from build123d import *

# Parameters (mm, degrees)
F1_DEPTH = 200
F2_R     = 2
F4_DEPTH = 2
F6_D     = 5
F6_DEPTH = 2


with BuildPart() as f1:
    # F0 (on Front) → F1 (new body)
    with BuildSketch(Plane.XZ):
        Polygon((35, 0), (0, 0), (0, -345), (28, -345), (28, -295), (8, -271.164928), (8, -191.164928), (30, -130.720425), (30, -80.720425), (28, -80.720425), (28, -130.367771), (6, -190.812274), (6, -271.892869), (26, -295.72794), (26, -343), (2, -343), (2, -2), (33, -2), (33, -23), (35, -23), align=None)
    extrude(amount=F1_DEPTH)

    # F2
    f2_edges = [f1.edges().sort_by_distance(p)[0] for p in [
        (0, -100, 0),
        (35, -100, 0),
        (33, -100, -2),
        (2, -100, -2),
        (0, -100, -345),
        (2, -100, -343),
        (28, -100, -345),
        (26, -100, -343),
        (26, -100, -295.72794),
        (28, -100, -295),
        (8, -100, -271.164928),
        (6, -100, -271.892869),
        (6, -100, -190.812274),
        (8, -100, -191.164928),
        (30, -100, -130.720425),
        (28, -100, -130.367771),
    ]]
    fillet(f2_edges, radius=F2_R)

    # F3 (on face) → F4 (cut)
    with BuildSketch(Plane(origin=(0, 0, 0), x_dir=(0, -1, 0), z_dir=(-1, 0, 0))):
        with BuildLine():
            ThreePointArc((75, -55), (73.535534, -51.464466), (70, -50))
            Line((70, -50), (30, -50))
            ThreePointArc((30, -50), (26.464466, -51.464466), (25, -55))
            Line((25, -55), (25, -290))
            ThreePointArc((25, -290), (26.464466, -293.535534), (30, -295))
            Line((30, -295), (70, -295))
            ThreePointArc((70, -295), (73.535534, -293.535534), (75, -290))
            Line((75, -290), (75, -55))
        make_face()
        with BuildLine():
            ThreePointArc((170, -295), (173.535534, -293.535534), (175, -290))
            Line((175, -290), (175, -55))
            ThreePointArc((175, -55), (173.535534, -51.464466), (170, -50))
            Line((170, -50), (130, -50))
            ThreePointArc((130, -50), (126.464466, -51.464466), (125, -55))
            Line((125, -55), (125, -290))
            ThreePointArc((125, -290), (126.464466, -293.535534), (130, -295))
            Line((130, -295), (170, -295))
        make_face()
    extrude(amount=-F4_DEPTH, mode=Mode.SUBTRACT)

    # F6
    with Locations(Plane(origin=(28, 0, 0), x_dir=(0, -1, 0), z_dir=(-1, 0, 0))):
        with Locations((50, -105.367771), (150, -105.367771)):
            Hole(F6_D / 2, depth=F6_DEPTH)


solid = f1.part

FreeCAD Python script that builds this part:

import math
import FreeCAD as App
import Part
import Sketcher
Q = App.Units.Quantity


def edges_at(feature, points):
    """Names of the edges that pass closest to the given points."""
    edges = feature.Shape.Edges
    near = lambda p: min(range(len(edges)), key=lambda i: edges[i].distToShape(Part.Vertex(*p))[0])
    return sorted({f"Edge{near(p) + 1}" for p in points})


def add_polygon(sketch, points):
    """Adds a closed chain of lines whose ends are joined by coincident constraints."""
    first, n = sketch.GeometryCount, len(points)
    for a, b in zip(points, points[1:] + points[:1]):
        sketch.addGeometry(Part.LineSegment(App.Vector(*a, 0), App.Vector(*b, 0)), False)
    for i in range(n):
        sketch.addConstraint(Sketcher.Constraint("Coincident", first + i, 2, first + (i + 1) % n, 1))

doc = App.newDocument("Part")
body = doc.addObject("PartDesign::Body", "Body")

sketch1 = body.newObject("Sketcher::SketchObject", "Sketch")
sketch1.AttachmentSupport = (doc.getObject("XZ_Plane"), [""])
sketch1.MapMode = "FlatFace"
add_polygon(sketch1, [(35, 0), (0, 0), (0, -345), (28, -345), (28, -295), (8, -271.2), (8, -191.2), (30, -130.7), (30, -80.7), (28, -80.7), (28, -130.4), (6, -190.8), (6, -271.9), (26, -295.7), (26, -343), (2, -343), (2, -2), (33, -2), (33, -23), (35, -23)])
sketch1.addConstraint([
    Sketcher.Constraint("Horizontal", 0),
    Sketcher.Constraint("Vertical", 1),
    Sketcher.Constraint("Horizontal", 2),
    Sketcher.Constraint("Vertical", 3),
    Sketcher.Constraint("Vertical", 5),
    Sketcher.Constraint("Vertical", 7),
    Sketcher.Constraint("Horizontal", 8),
    Sketcher.Constraint("Vertical", 9),
    Sketcher.Constraint("Vertical", 11),
    Sketcher.Constraint("Vertical", 13),
    Sketcher.Constraint("Horizontal", 14),
    Sketcher.Constraint("Vertical", 15),
    Sketcher.Constraint("Horizontal", 16),
    Sketcher.Constraint("Vertical", 17),
    Sketcher.Constraint("Horizontal", 18),
    Sketcher.Constraint("Vertical", 19),
    Sketcher.Constraint("Coincident", 0, 2, -1, 1),
    Sketcher.Constraint("Parallel", 6, 10),
    Sketcher.Constraint("Parallel", 4, 12),
    Sketcher.Constraint("Vertical", 3, 2, 8, 2),
    Sketcher.Constraint("Equal", 8, 18),
    Sketcher.Constraint("Equal", 3, 7),
    Sketcher.Constraint("Equal", 6, 10),
    Sketcher.Constraint("Equal", 4, 12),
    Sketcher.Constraint("DistanceX", 0, 2, 0, 1, Q("35 mm")),
    Sketcher.Constraint("DistanceX", 2, 1, 2, 2, Q("28 mm")),
    Sketcher.Constraint("DistanceX", 8, 2, 8, 1, Q("2 mm")),
    Sketcher.Constraint("DistanceX", 14, 2, 14, 1, Q("24 mm")),
    Sketcher.Constraint("DistanceY", 1, 2, 1, 1, Q("345 mm")),
    Sketcher.Constraint("DistanceY", 3, 1, 3, 2, Q("50 mm")),
    Sketcher.Constraint("DistanceY", 5, 1, 5, 2, Q("80 mm")),
    Sketcher.Constraint("DistanceY", 15, 1, 15, 2, Q("341 mm")),
    Sketcher.Constraint("DistanceY", 17, 2, 17, 1, Q("21 mm")),
    Sketcher.Constraint("DistanceY", 19, 1, 19, 2, Q("23 mm")),
    Sketcher.Constraint("Angle", 4, Q("130 deg")),
    Sketcher.Constraint("Angle", 6, Q("70 deg")),
    Sketcher.Constraint("DistanceX", -1, 1, 4, 2, Q("8 mm")),
    Sketcher.Constraint("DistanceY", 13, 2, 13, 1, Q("47.27206 mm")),
    Sketcher.Constraint("DistanceY", 9, 2, 9, 1, Q("49.647346 mm")),
])
pad1 = body.newObject("PartDesign::Pad", "Pad")
pad1.Profile = sketch1
pad1.Length = 200
doc.recompute()

fillet = body.newObject("PartDesign::Fillet", "Fillet")
fillet.Base = (pad1, edges_at(pad1, [
    (0, -100, 0),
    (35, -100, 0),
    (33, -100, -2),
    (2, -100, -2),
    (0, -100, -345),
    (2, -100, -343),
    (28, -100, -345),
    (26, -100, -343),
    (26, -100, -295.728),
    (28, -100, -295),
    (8, -100, -271.165),
    (6, -100, -271.893),
    (6, -100, -190.812),
    (8, -100, -191.165),
    (30, -100, -130.72),
    (28, -100, -130.368),
]))
fillet.Radius = 2

sketch2 = body.newObject("Sketcher::SketchObject", "Sketch001")
sketch2.AttachmentSupport = (doc.getObject("YZ_Plane"), [""])
sketch2.MapMode = "FlatFace"
sketch2.addGeometry([
    Part.ArcOfCircle(Part.Circle(App.Vector(-70, -55, 0), App.Vector(0, 0, 1), 5), math.radians(90), math.radians(180)),
    Part.LineSegment(App.Vector(-70, -50, 0), App.Vector(-30, -50, 0)),
    Part.ArcOfCircle(Part.Circle(App.Vector(-30, -55, 0), App.Vector(0, 0, 1), 5), math.radians(0), math.radians(90)),
    Part.LineSegment(App.Vector(-25, -55, 0), App.Vector(-25, -290, 0)),
    Part.ArcOfCircle(Part.Circle(App.Vector(-30, -290, 0), App.Vector(0, 0, 1), 5), math.radians(-90), math.radians(0)),
    Part.LineSegment(App.Vector(-30, -295, 0), App.Vector(-70, -295, 0)),
    Part.ArcOfCircle(Part.Circle(App.Vector(-70, -290, 0), App.Vector(0, 0, 1), 5), math.radians(180), math.radians(270)),
    Part.LineSegment(App.Vector(-75, -290, 0), App.Vector(-75, -55, 0)),
    Part.ArcOfCircle(Part.Circle(App.Vector(-170, -290, 0), App.Vector(0, 0, 1), 5), math.radians(180), math.radians(270)),
    Part.LineSegment(App.Vector(-175, -290, 0), App.Vector(-175, -55, 0)),
    Part.ArcOfCircle(Part.Circle(App.Vector(-170, -55, 0), App.Vector(0, 0, 1), 5), math.radians(90), math.radians(180)),
    Part.LineSegment(App.Vector(-170, -50, 0), App.Vector(-130, -50, 0)),
    Part.ArcOfCircle(Part.Circle(App.Vector(-130, -55, 0), App.Vector(0, 0, 1), 5), math.radians(0), math.radians(90)),
    Part.LineSegment(App.Vector(-125, -55, 0), App.Vector(-125, -290, 0)),
    Part.ArcOfCircle(Part.Circle(App.Vector(-130, -290, 0), App.Vector(0, 0, 1), 5), math.radians(-90), math.radians(0)),
    Part.LineSegment(App.Vector(-130, -295, 0), App.Vector(-170, -295, 0)),
], False)
sketch2.addConstraint([
    Sketcher.Constraint("Tangent", 0, 1, 1, 1),
    Sketcher.Constraint("Tangent", 1, 2, 2, 2),
    Sketcher.Constraint("Tangent", 2, 1, 3, 1),
    Sketcher.Constraint("Tangent", 3, 2, 4, 2),
    Sketcher.Constraint("Tangent", 4, 1, 5, 1),
    Sketcher.Constraint("Tangent", 5, 2, 6, 2),
    Sketcher.Constraint("Tangent", 6, 1, 7, 1),
    Sketcher.Constraint("Tangent", 7, 2, 0, 2),
    Sketcher.Constraint("Tangent", 8, 1, 9, 1),
    Sketcher.Constraint("Tangent", 9, 2, 10, 2),
    Sketcher.Constraint("Tangent", 10, 1, 11, 1),
    Sketcher.Constraint("Tangent", 11, 2, 12, 2),
    Sketcher.Constraint("Tangent", 12, 1, 13, 1),
    Sketcher.Constraint("Tangent", 13, 2, 14, 2),
    Sketcher.Constraint("Tangent", 14, 1, 15, 1),
    Sketcher.Constraint("Tangent", 15, 2, 8, 2),
    Sketcher.Constraint("Horizontal", 1),
    Sketcher.Constraint("Vertical", 3),
    Sketcher.Constraint("Horizontal", 5),
    Sketcher.Constraint("Vertical", 7),
    Sketcher.Constraint("Vertical", 9),
    Sketcher.Constraint("Horizontal", 11),
    Sketcher.Constraint("Vertical", 13),
    Sketcher.Constraint("Horizontal", 15),
    Sketcher.Constraint("Equal", 0, 2),
    Sketcher.Constraint("Equal", 2, 4),
    Sketcher.Constraint("Equal", 4, 6),
    Sketcher.Constraint("Equal", 6, 8),
    Sketcher.Constraint("Equal", 8, 10),
    Sketcher.Constraint("Equal", 10, 12),
    Sketcher.Constraint("Equal", 12, 14),
    Sketcher.Constraint("Horizontal", 6, 3, 8, 3),
    Sketcher.Constraint("Horizontal", 2, 3, 10, 3),
    Sketcher.Constraint("Equal", 5, 11),
    Sketcher.Constraint("Radius", 0, Q("5 mm")),
    Sketcher.Constraint("DistanceX", 1, 1, 1, 2, Q("40 mm")),
    Sketcher.Constraint("DistanceY", 3, 2, 3, 1, Q("235 mm")),
    Sketcher.Constraint("DistanceX", 0, 3, -1, 1, Q("70 mm")),
    Sketcher.Constraint("DistanceY", 0, 3, -1, 1, Q("55 mm")),
    Sketcher.Constraint("DistanceX", 8, 3, -1, 1, Q("170 mm")),
])
pocket1 = body.newObject("PartDesign::Pocket", "Pocket")
pocket1.Profile = sketch2
pocket1.Length = 2
pocket1.Reversed = True

sketch3 = body.newObject("Sketcher::SketchObject", "Sketch002")
sketch3.AttachmentSupport = (doc.getObject("YZ_Plane"), [""])
sketch3.MapMode = "FlatFace"
sketch3.AttachmentOffset = App.Placement(App.Vector(0, 0, 28), App.Rotation())
sketch3.addGeometry([
    Part.Circle(App.Vector(-50, -105.4, 0), App.Vector(0, 0, 1), 2.5),
    Part.Circle(App.Vector(-150, -105.4, 0), App.Vector(0, 0, 1), 2.5),
], False)
sketch3.addConstraint([
    Sketcher.Constraint("Equal", 0, 1),
    Sketcher.Constraint("Horizontal", 0, 3, 1, 3),
    Sketcher.Constraint("Diameter", 0, Q("5 mm")),
    Sketcher.Constraint("DistanceX", 0, 3, -1, 1, Q("50 mm")),
    Sketcher.Constraint("DistanceX", 1, 3, -1, 1, Q("150 mm")),
    Sketcher.Constraint("DistanceY", 0, 3, -1, 1, Q("105.367771 mm")),
])
doc.recompute()
hole = body.newObject("PartDesign::Hole", "Hole")
hole.Profile = sketch3
hole.ThreadType = "None"
hole.Diameter = 5
hole.DepthType = "Dimension"
hole.Depth = 2
hole.DrillPoint = "Flat"
hole.Reversed = True

doc.recompute()
